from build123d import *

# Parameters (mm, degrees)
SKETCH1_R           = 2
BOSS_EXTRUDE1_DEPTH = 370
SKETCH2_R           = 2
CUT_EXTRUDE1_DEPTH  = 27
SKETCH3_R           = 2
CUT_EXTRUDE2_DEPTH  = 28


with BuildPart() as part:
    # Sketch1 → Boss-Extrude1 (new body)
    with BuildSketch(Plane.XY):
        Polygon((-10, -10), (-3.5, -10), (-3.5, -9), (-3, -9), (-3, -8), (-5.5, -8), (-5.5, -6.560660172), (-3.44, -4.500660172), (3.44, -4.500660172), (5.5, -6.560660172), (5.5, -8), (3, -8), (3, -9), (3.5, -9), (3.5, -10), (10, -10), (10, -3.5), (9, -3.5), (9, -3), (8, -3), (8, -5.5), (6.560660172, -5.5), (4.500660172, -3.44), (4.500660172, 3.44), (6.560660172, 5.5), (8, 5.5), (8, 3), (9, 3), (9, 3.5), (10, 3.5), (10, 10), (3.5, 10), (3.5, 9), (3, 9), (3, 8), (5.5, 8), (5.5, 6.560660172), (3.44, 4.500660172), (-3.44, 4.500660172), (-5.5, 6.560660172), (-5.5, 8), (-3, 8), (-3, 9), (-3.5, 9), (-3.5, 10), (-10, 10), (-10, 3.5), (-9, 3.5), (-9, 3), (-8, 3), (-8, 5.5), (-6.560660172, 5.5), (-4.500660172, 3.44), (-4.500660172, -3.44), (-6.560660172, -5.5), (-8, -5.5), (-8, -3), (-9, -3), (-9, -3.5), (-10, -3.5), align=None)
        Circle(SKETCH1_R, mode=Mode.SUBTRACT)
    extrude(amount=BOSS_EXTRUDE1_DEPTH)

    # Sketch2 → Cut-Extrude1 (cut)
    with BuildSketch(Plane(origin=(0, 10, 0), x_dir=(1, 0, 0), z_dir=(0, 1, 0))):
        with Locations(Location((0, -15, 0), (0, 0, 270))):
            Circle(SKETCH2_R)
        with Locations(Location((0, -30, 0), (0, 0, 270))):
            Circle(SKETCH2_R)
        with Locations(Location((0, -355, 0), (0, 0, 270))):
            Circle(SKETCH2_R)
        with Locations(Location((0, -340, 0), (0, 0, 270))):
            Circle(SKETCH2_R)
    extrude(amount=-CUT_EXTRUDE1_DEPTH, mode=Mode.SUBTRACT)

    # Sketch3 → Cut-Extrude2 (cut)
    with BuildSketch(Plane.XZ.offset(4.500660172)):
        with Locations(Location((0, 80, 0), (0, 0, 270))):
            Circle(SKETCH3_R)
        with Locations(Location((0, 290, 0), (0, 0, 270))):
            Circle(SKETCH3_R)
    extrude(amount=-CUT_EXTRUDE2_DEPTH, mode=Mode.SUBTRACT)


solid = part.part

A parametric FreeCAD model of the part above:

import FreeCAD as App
import Part
import Sketcher
Q = App.Units.Quantity

doc = App.newDocument("Part")
body = doc.addObject("PartDesign::Body", "Body")

sketch1 = doc.addObject("Sketcher::SketchObject", "Sketch")
body.addObject(sketch1)
sketch1.AttachmentSupport = (doc.XY_Plane, [""])
sketch1.MapMode = "FlatFace"
sketch1.addGeometry([
    Part.LineSegment(App.Vector(-10, -10, 0), App.Vector(-3.5, -10, 0)),
    Part.LineSegment(App.Vector(-3.5, -10, 0), App.Vector(-3.5, -9, 0)),
    Part.LineSegment(App.Vector(-3.5, -9, 0), App.Vector(-3, -9, 0)),
    Part.LineSegment(App.Vector(-3, -9, 0), App.Vector(-3, -8, 0)),
    Part.LineSegment(App.Vector(-3, -8, 0), App.Vector(-5.5, -8, 0)),
    Part.LineSegment(App.Vector(-5.5, -8, 0), App.Vector(-5.5, -6.6, 0)),
    Part.LineSegment(App.Vector(-5.5, -6.6, 0), App.Vector(-3.4, -4.5, 0)),
    Part.LineSegment(App.Vector(-3.4, -4.5, 0), App.Vector(3.4, -4.5, 0)),
    Part.LineSegment(App.Vector(3.4, -4.5, 0), App.Vector(5.5, -6.6, 0)),
    Part.LineSegment(App.Vector(5.5, -6.6, 0), App.Vector(5.5, -8, 0)),
    Part.LineSegment(App.Vector(5.5, -8, 0), App.Vector(3, -8, 0)),
    Part.LineSegment(App.Vector(3, -8, 0), App.Vector(3, -9, 0)),
    Part.LineSegment(App.Vector(3, -9, 0), App.Vector(3.5, -9, 0)),
    Part.LineSegment(App.Vector(3.5, -9, 0), App.Vector(3.5, -10, 0)),
    Part.LineSegment(App.Vector(3.5, -10, 0), App.Vector(10, -10, 0)),
    Part.LineSegment(App.Vector(10, -10, 0), App.Vector(10, -3.5, 0)),
    Part.LineSegment(App.Vector(10, -3.5, 0), App.Vector(9, -3.5, 0)),
    Part.LineSegment(App.Vector(9, -3.5, 0), App.Vector(9, -3, 0)),
    Part.LineSegment(App.Vector(9, -3, 0), App.Vector(8, -3, 0)),
    Part.LineSegment(App.Vector(8, -3, 0), App.Vector(8, -5.5, 0)),
    Part.LineSegment(App.Vector(8, -5.5, 0), App.Vector(6.6, -5.5, 0)),
    Part.LineSegment(App.Vector(6.6, -5.5, 0), App.Vector(4.5, -3.4, 0)),
    Part.LineSegment(App.Vector(4.5, -3.4, 0), App.Vector(4.5, 3.4, 0)),
    Part.LineSegment(App.Vector(4.5, 3.4, 0), App.Vector(6.6, 5.5, 0)),
    Part.LineSegment(App.Vector(6.6, 5.5, 0), App.Vector(8, 5.5, 0)),
    Part.LineSegment(App.Vector(8, 5.5, 0), App.Vector(8, 3, 0)),
    Part.LineSegment(App.Vector(8, 3, 0), App.Vector(9, 3, 0)),
    Part.LineSegment(App.Vector(9, 3, 0), App.Vector(9, 3.5, 0)),
    Part.LineSegment(App.Vector(9, 3.5, 0), App.Vector(10, 3.5, 0)),
    Part.LineSegment(App.Vector(10, 3.5, 0), App.Vector(10, 10, 0)),
    Part.LineSegment(App.Vector(10, 10, 0), App.Vector(3.5, 10, 0)),
    Part.LineSegment(App.Vector(3.5, 10, 0), App.Vector(3.5, 9, 0)),
    Part.LineSegment(App.Vector(3.5, 9, 0), App.Vector(3, 9, 0)),
    Part.LineSegment(App.Vector(3, 9, 0), App.Vector(3, 8, 0)),
    Part.LineSegment(App.Vector(3, 8, 0), App.Vector(5.5, 8, 0)),
    Part.LineSegment(App.Vector(5.5, 8, 0), App.Vector(5.5, 6.6, 0)),
    Part.LineSegment(App.Vector(5.5, 6.6, 0), App.Vector(3.4, 4.5, 0)),
    Part.LineSegment(App.Vector(3.4, 4.5, 0), App.Vector(-3.4, 4.5, 0)),
    Part.LineSegment(App.Vector(-3.4, 4.5, 0), App.Vector(-5.5, 6.6, 0)),
    Part.LineSegment(App.Vector(-5.5, 6.6, 0), App.Vector(-5.5, 8, 0)),
    Part.LineSegment(App.Vector(-5.5, 8, 0), App.Vector(-3, 8, 0)),
    Part.LineSegment(App.Vector(-3, 8, 0), App.Vector(-3, 9, 0)),
    Part.LineSegment(App.Vector(-3, 9, 0), App.Vector(-3.5, 9, 0)),
    Part.LineSegment(App.Vector(-3.5, 9, 0), App.Vector(-3.5, 10, 0)),
    Part.LineSegment(App.Vector(-3.5, 10, 0), App.Vector(-10, 10, 0)),
    Part.LineSegment(App.Vector(-10, 10, 0), App.Vector(-10, 3.5, 0)),
    Part.LineSegment(App.Vector(-10, 3.5, 0), App.Vector(-9, 3.5, 0)),
    Part.LineSegment(App.Vector(-9, 3.5, 0), App.Vector(-9, 3, 0)),
    Part.LineSegment(App.Vector(-9, 3, 0), App.Vector(-8, 3, 0)),
    Part.LineSegment(App.Vector(-8, 3, 0), App.Vector(-8, 5.5, 0)),
    Part.LineSegment(App.Vector(-8, 5.5, 0), App.Vector(-6.6, 5.5, 0)),
    Part.LineSegment(App.Vector(-6.6, 5.5, 0), App.Vector(-4.5, 3.4, 0)),
    Part.LineSegment(App.Vector(-4.5, 3.4, 0), App.Vector(-4.5, -3.4, 0)),
    Part.LineSegment(App.Vector(-4.5, -3.4, 0), App.Vector(-6.6, -5.5, 0)),
    Part.LineSegment(App.Vector(-6.6, -5.5, 0), App.Vector(-8, -5.5, 0)),
    Part.LineSegment(App.Vector(-8, -5.5, 0), App.Vector(-8, -3, 0)),
    Part.LineSegment(App.Vector(-8, -3, 0), App.Vector(-9, -3, 0)),
    Part.LineSegment(App.Vector(-9, -3, 0), App.Vector(-9, -3.5, 0)),
    Part.LineSegment(App.Vector(-9, -3.5, 0), App.Vector(-10, -3.5, 0)),
    Part.LineSegment(App.Vector(-10, -3.5, 0), App.Vector(-10, -10, 0)),
    Part.Circle(App.Vector(0, 0, 0), App.Vector(0, 0, 1), 2),
], False)
sketch1.addConstraint([
    Sketcher.Constraint("Coincident", 0, 2, 1, 1),
    Sketcher.Constraint("Coincident", 1, 2, 2, 1),
    Sketcher.Constraint("Coincident", 2, 2, 3, 1),
    Sketcher.Constraint("Coincident", 3, 2, 4, 1),
    Sketcher.Constraint("Coincident", 4, 2, 5, 1),
    Sketcher.Constraint("Coincident", 5, 2, 6, 1),
    Sketcher.Constraint("Coincident", 6, 2, 7, 1),
    Sketcher.Constraint("Coincident", 7, 2, 8, 1),
    Sketcher.Constraint("Coincident", 8, 2, 9, 1),
    Sketcher.Constraint("Coincident", 9, 2, 10, 1),
    Sketcher.Constraint("Coincident", 10, 2, 11, 1),
    Sketcher.Constraint("Coincident", 11, 2, 12, 1),
    Sketcher.Constraint("Coincident", 12, 2, 13, 1),
    Sketcher.Constraint("Coincident", 13, 2, 14, 1),
    Sketcher.Constraint("Coincident", 14, 2, 15, 1),
    Sketcher.Constraint("Coincident", 15, 2, 16, 1),
    Sketcher.Constraint("Coincident", 16, 2, 17, 1),
    Sketcher.Constraint("Coincident", 17, 2, 18, 1),
    Sketcher.Constraint("Coincident", 18, 2, 19, 1),
    Sketcher.Constraint("Coincident", 19, 2, 20, 1),
    Sketcher.Constraint("Coincident", 20, 2, 21, 1),
    Sketcher.Constraint("Coincident", 21, 2, 22, 1),
    Sketcher.Constraint("Coincident", 22, 2, 23, 1),
    Sketcher.Constraint("Coincident", 23, 2, 24, 1),
    Sketcher.Constraint("Coincident", 24, 2, 25, 1),
    Sketcher.Constraint("Coincident", 25, 2, 26, 1),
    Sketcher.Constraint("Coincident", 26, 2, 27, 1),
    Sketcher.Constraint("Coincident", 27, 2, 28, 1),
    Sketcher.Constraint("Coincident", 28, 2, 29, 1),
    Sketcher.Constraint("Coincident", 29, 2, 30, 1),
    Sketcher.Constraint("Coincident", 30, 2, 31, 1),
    Sketcher.Constraint("Coincident", 31, 2, 32, 1),
    Sketcher.Constraint("Coincident", 32, 2, 33, 1),
    Sketcher.Constraint("Coincident", 33, 2, 34, 1),
    Sketcher.Constraint("Coincident", 34, 2, 35, 1),
    Sketcher.Constraint("Coincident", 35, 2, 36, 1),
    Sketcher.Constraint("Coincident", 36, 2, 37, 1),
    Sketcher.Constraint("Coincident", 37, 2, 38, 1),
    Sketcher.Constraint("Coincident", 38, 2, 39, 1),
    Sketcher.Constraint("Coincident", 39, 2, 40, 1),
    Sketcher.Constraint("Coincident", 40, 2, 41, 1),
    Sketcher.Constraint("Coincident", 41, 2, 42, 1),
    Sketcher.Constraint("Coincident", 42, 2, 43, 1),
    Sketcher.Constraint("Coincident", 43, 2, 44, 1),
    Sketcher.Constraint("Coincident", 44, 2, 45, 1),
    Sketcher.Constraint("Coincident", 45, 2, 46, 1),
    Sketcher.Constraint("Coincident", 46, 2, 47, 1),
    Sketcher.Constraint("Coincident", 47, 2, 48, 1),
    Sketcher.Constraint("Coincident", 48, 2, 49, 1),
    Sketcher.Constraint("Coincident", 49, 2, 50, 1),
    Sketcher.Constraint("Coincident", 50, 2, 51, 1),
    Sketcher.Constraint("Coincident", 51, 2, 52, 1),
    Sketcher.Constraint("Coincident", 52, 2, 53, 1),
    Sketcher.Constraint("Coincident", 53, 2, 54, 1),
    Sketcher.Constraint("Coincident", 54, 2, 55, 1),
    Sketcher.Constraint("Coincident", 55, 2, 56, 1),
    Sketcher.Constraint("Coincident", 56, 2, 57, 1),
    Sketcher.Constraint("Coincident", 57, 2, 58, 1),
    Sketcher.Constraint("Coincident", 58, 2, 59, 1),
    Sketcher.Constraint("Coincident", 59, 2, 0, 1),
    Sketcher.Constraint("Horizontal", 0),
    Sketcher.Constraint("Vertical", 1),
    Sketcher.Constraint("Horizontal", 2),
    Sketcher.Constraint("Vertical", 3),
    Sketcher.Constraint("Horizontal", 4),
    Sketcher.Constraint("Vertical", 5),
    Sketcher.Constraint("Horizontal", 7),
    Sketcher.Constraint("Vertical", 9),
    Sketcher.Constraint("Horizontal", 10),
    Sketcher.Constraint("Vertical", 11),
    Sketcher.Constraint("Horizontal", 12),
    Sketcher.Constraint("Vertical", 13),
    Sketcher.Constraint("Horizontal", 14),
    Sketcher.Constraint("Vertical", 15),
    Sketcher.Constraint("Horizontal", 16),
    Sketcher.Constraint("Vertical", 17),
    Sketcher.Constraint("Horizontal", 18),
    Sketcher.Constraint("Vertical", 19),
    Sketcher.Constraint("Horizontal", 20),
    Sketcher.Constraint("Vertical", 22),
    Sketcher.Constraint("Horizontal", 24),
    Sketcher.Constraint("Vertical", 25),
    Sketcher.Constraint("Horizontal", 26),
    Sketcher.Constraint("Vertical", 27),
    Sketcher.Constraint("Horizontal", 28),
    Sketcher.Constraint("Vertical", 29),
    Sketcher.Constraint("Horizontal", 30),
    Sketcher.Constraint("Vertical", 31),
    Sketcher.Constraint("Horizontal", 32),
    Sketcher.Constraint("Vertical", 33),
    Sketcher.Constraint("Horizontal", 34),
    Sketcher.Constraint("Vertical", 35),
    Sketcher.Constraint("Horizontal", 37),
    Sketcher.Constraint("Vertical", 39),
    Sketcher.Constraint("Horizontal", 40),
    Sketcher.Constraint("Vertical", 41),
    Sketcher.Constraint("Horizontal", 42),
    Sketcher.Constraint("Vertical", 43),
    Sketcher.Constraint("Horizontal", 44),
    Sketcher.Constraint("Vertical", 45),
    Sketcher.Constraint("Horizontal", 46),
    Sketcher.Constraint("Vertical", 47),
    Sketcher.Constraint("Horizontal", 48),
    Sketcher.Constraint("Vertical", 49),
    Sketcher.Constraint("Horizontal", 50),
    Sketcher.Constraint("Vertical", 52),
    Sketcher.Constraint("Horizontal", 54),
    Sketcher.Constraint("Vertical", 55),
    Sketcher.Constraint("Horizontal", 56),
    Sketcher.Constraint("Vertical", 57),
    Sketcher.Constraint("Horizontal", 58),
    Sketcher.Constraint("Vertical", 59),
    Sketcher.Constraint("Coincident", 60, 3, -1, 1),
    Sketcher.Constraint("Symmetric", 0, 2, 30, 2, -1, 1),
    Sketcher.Constraint("Symmetric", 2, 2, 32, 2, -1, 1),
    Sketcher.Constraint("Symmetric", 4, 2, 34, 2, -1, 1),
    Sketcher.Constraint("Symmetric", 6, 2, 36, 2, -1, 1),
    Sketcher.Constraint("Symmetric", 8, 2, 38, 2, -1, 1),
    Sketcher.Constraint("Symmetric", 10, 2, 40, 2, -1, 1),
    Sketcher.Constraint("Symmetric", 12, 2, 42, 2, -1, 1),
    Sketcher.Constraint("Symmetric", 14, 2, 44, 2, -1, 1),
    Sketcher.Constraint("Symmetric", 16, 2, 46, 2, -1, 1),
    Sketcher.Constraint("Symmetric", 18, 2, 48, 2, -1, 1),
    Sketcher.Constraint("Symmetric", 20, 2, 50, 2, -1, 1),
    Sketcher.Constraint("Symmetric", 21, 2, 51, 2, -1, 1),
    Sketcher.Constraint("Symmetric", 23, 2, 53, 2, -1, 1),
    Sketcher.Constraint("Symmetric", 25, 2, 55, 2, -1, 1),
    Sketcher.Constraint("Symmetric", 27, 2, 57, 2, -1, 1),
    Sketcher.Constraint("Symmetric", 5, 2, 8, 2, -2),
    Sketcher.Constraint("Symmetric", 3, 2, 10, 2, -2),
    Sketcher.Constraint("Symmetric", 1, 2, 12, 2, -2),
    Sketcher.Constraint("Symmetric", 29, 2, 44, 2, -2),
    Sketcher.Constraint("Symmetric", 27, 2, 46, 2, -2),
    Sketcher.Constraint("Symmetric", 25, 2, 48, 2, -2),
    Sketcher.Constraint("Symmetric", 23, 2, 50, 2, -2),
    Sketcher.Constraint("Perpendicular", 6, 8),
    Sketcher.Constraint("Parallel", 8, 21),
    Sketcher.Constraint("Perpendicular", 21, 23),
    Sketcher.Constraint("Parallel", 23, 36),
    Sketcher.Constraint("Perpendicular", 36, 38),
    Sketcher.Constraint("Perpendicular", 51, 53),
    Sketcher.Constraint("Horizontal", 22, 2, 51, 2),
    Sketcher.Constraint("Vertical", 45, 2, 58, 2),
    Sketcher.Constraint("Equal", 16, 18),
    Sketcher.Constraint("Equal", 58, 1),
    Sketcher.Constraint("Equal", 1, 3),
    Sketcher.Constraint("Equal", 54, 5),
    Sketcher.Constraint("Equal", 44, 15),
    Sketcher.Constraint("Equal", 42, 17),
    Sketcher.Constraint("Equal", 40, 19),
    Sketcher.Constraint("Equal", 37, 22),
    Sketcher.Constraint("Equal", 8, 21),
    Sketcher.Constraint("Diameter", 60, Q("4 mm")),
    Sketcher.Constraint("DistanceX", 16, 2, 16, 1, Q("1 mm")),
    Sketcher.Constraint("DistanceX", 0, 1, 0, 2, Q("6.5 mm")),
    Sketcher.Constraint("DistanceX", 2, 1, 2, 2, Q("0.5 mm")),
    Sketcher.Constraint("DistanceX", 4, 2, 4, 1, Q("2.5 mm")),
    Sketcher.Constraint("DistanceY", 0, 2, -1, 1, Q("10 mm")),
    Sketcher.Constraint("DistanceX", 7, 1, 7, 2, Q("6.88 mm")),
    Sketcher.Constraint("DistanceX", 20, 2, 20, 1, Q("1.43934 mm")),
])
pad1 = doc.addObject("PartDesign::Pad", "Pad")
body.addObject(pad1)
pad1.Profile = sketch1
pad1.Length = 370

sketch2 = doc.addObject("Sketcher::SketchObject", "Sketch001")
body.addObject(sketch2)
sketch2.AttachmentSupport = (doc.XZ_Plane, [""])
sketch2.MapMode = "FlatFace"
sketch2.AttachmentOffset = App.Placement(App.Vector(0, 0, -10), App.Rotation())
sketch2.addGeometry([
    Part.Circle(App.Vector(0, 15, 0), App.Vector(0, 0, 1), 2),
    Part.Circle(App.Vector(0, 30, 0), App.Vector(0, 0, 1), 2),
    Part.Circle(App.Vector(0, 355, 0), App.Vector(0, 0, 1), 2),
    Part.Circle(App.Vector(0, 340, 0), App.Vector(0, 0, 1), 2),
], False)
sketch2.addConstraint([
    Sketcher.Constraint("Equal", 0, 1),
    Sketcher.Constraint("Equal", 1, 2),
    Sketcher.Constraint("Equal", 2, 3),
    Sketcher.Constraint("PointOnObject", 0, 3, -2),
    Sketcher.Constraint("PointOnObject", 1, 3, -2),
    Sketcher.Constraint("PointOnObject", 2, 3, -2),
    Sketcher.Constraint("PointOnObject", 3, 3, -2),
    Sketcher.Constraint("Diameter", 0, Q("4 mm")),
    Sketcher.Constraint("DistanceY", -1, 1, 0, 3, Q("15 mm")),
    Sketcher.Constraint("DistanceY", -1, 1, 1, 3, Q("30 mm")),
    Sketcher.Constraint("DistanceY", -1, 1, 2, 3, Q("355 mm")),
    Sketcher.Constraint("DistanceY", -1, 1, 3, 3, Q("340 mm")),
])
pocket1 = doc.addObject("PartDesign::Pocket", "Pocket")
body.addObject(pocket1)
pocket1.Profile = sketch2
pocket1.Length = 27
pocket1.Reversed = True

sketch3 = doc.addObject("Sketcher::SketchObject", "Sketch002")
body.addObject(sketch3)
sketch3.AttachmentSupport = (doc.XZ_Plane, [""])
sketch3.MapMode = "FlatFace"
sketch3.AttachmentOffset = App.Placement(App.Vector(0, 0, 4.50066), App.Rotation())
sketch3.addGeometry([
    Part.Circle(App.Vector(0, 80, 0), App.Vector(0, 0, 1), 2),
    Part.Circle(App.Vector(0, 290, 0), App.Vector(0, 0, 1), 2),
], False)
sketch3.addConstraint([
    Sketcher.Constraint("Equal", 0, 1),
    Sketcher.Constraint("PointOnObject", 0, 3, -2),
    Sketcher.Constraint("PointOnObject", 1, 3, -2),
    Sketcher.Constraint("Diameter", 0, Q("4 mm")),
    Sketcher.Constraint("DistanceY", -1, 1, 0, 3, Q("80 mm")),
    Sketcher.Constraint("DistanceY", -1, 1, 1, 3, Q("290 mm")),
])
pocket2 = doc.addObject("PartDesign::Pocket", "Pocket001")
body.addObject(pocket2)
pocket2.Profile = sketch3
pocket2.Length = 28

doc.recompute()
